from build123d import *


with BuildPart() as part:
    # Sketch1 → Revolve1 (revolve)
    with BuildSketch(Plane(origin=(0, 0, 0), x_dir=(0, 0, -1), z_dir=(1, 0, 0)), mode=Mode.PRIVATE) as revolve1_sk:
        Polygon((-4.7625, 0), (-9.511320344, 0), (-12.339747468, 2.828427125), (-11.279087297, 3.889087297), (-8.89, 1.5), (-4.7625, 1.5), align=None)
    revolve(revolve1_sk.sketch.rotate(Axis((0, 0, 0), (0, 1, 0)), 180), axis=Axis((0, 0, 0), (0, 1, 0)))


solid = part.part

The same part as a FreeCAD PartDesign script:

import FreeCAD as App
import Part
import Sketcher

V = App.Vector
Q = App.Units.Quantity


def add_polygon(sketch, points):
    """Adds a closed chain of lines whose ends are joined by coincident constraints."""
    first, n = sketch.GeometryCount, len(points)
    for a, b in zip(points, points[1:] + points[:1]):
        sketch.addGeometry(Part.LineSegment(App.Vector(*a, 0), App.Vector(*b, 0)), False)
    for i in range(n):
        sketch.addConstraint(Sketcher.Constraint("Coincident", first + i, 2, first + (i + 1) % n, 1))

doc = App.newDocument("Part")
body = doc.addObject("PartDesign::Body", "Body")

# Sketch on YZ plane
sketch1 = body.newObject("Sketcher::SketchObject", "Sketch")
sketch1.AttachmentSupport = (doc.getObject("YZ_Plane"), [""])
sketch1.MapMode = "FlatFace"
add_polygon(sketch1, [(0, 9.5), (0, 4.8), (1.5, 4.8), (1.5, 8.9), (3.9, 11.3), (2.8, 12.3)])  # lines 0-5
sketch1.addConstraint([
    Sketcher.Constraint("Vertical", 0),
    Sketcher.Constraint("Horizontal", 1),
    Sketcher.Constraint("Vertical", 2),
    Sketcher.Constraint("PointOnObject", 0, 2, -2),
    Sketcher.Constraint("Perpendicular", 3, 4),
    Sketcher.Constraint("Perpendicular", 4, 5),
    Sketcher.Constraint("Angle", 3, Q("45 deg")),
    Sketcher.Constraint("Distance", 5, 4.0),
    Sketcher.Constraint("DistanceX", 1, 1, 1, 2, 1.5),
    Sketcher.Constraint("Distance", 4, 1.5),
    Sketcher.Constraint("DistanceY", -1, 1, 2, 2, 8.89),
    Sketcher.Constraint("DistanceY", 2, 1, 2, 2, 4.1275),
])
revolution = body.newObject("PartDesign::Revolution", "Revolution")
revolution.Profile = sketch1
revolution.ReferenceAxis = (sketch1, ["H_Axis"])
revolution.Angle = 360

doc.recompute()
